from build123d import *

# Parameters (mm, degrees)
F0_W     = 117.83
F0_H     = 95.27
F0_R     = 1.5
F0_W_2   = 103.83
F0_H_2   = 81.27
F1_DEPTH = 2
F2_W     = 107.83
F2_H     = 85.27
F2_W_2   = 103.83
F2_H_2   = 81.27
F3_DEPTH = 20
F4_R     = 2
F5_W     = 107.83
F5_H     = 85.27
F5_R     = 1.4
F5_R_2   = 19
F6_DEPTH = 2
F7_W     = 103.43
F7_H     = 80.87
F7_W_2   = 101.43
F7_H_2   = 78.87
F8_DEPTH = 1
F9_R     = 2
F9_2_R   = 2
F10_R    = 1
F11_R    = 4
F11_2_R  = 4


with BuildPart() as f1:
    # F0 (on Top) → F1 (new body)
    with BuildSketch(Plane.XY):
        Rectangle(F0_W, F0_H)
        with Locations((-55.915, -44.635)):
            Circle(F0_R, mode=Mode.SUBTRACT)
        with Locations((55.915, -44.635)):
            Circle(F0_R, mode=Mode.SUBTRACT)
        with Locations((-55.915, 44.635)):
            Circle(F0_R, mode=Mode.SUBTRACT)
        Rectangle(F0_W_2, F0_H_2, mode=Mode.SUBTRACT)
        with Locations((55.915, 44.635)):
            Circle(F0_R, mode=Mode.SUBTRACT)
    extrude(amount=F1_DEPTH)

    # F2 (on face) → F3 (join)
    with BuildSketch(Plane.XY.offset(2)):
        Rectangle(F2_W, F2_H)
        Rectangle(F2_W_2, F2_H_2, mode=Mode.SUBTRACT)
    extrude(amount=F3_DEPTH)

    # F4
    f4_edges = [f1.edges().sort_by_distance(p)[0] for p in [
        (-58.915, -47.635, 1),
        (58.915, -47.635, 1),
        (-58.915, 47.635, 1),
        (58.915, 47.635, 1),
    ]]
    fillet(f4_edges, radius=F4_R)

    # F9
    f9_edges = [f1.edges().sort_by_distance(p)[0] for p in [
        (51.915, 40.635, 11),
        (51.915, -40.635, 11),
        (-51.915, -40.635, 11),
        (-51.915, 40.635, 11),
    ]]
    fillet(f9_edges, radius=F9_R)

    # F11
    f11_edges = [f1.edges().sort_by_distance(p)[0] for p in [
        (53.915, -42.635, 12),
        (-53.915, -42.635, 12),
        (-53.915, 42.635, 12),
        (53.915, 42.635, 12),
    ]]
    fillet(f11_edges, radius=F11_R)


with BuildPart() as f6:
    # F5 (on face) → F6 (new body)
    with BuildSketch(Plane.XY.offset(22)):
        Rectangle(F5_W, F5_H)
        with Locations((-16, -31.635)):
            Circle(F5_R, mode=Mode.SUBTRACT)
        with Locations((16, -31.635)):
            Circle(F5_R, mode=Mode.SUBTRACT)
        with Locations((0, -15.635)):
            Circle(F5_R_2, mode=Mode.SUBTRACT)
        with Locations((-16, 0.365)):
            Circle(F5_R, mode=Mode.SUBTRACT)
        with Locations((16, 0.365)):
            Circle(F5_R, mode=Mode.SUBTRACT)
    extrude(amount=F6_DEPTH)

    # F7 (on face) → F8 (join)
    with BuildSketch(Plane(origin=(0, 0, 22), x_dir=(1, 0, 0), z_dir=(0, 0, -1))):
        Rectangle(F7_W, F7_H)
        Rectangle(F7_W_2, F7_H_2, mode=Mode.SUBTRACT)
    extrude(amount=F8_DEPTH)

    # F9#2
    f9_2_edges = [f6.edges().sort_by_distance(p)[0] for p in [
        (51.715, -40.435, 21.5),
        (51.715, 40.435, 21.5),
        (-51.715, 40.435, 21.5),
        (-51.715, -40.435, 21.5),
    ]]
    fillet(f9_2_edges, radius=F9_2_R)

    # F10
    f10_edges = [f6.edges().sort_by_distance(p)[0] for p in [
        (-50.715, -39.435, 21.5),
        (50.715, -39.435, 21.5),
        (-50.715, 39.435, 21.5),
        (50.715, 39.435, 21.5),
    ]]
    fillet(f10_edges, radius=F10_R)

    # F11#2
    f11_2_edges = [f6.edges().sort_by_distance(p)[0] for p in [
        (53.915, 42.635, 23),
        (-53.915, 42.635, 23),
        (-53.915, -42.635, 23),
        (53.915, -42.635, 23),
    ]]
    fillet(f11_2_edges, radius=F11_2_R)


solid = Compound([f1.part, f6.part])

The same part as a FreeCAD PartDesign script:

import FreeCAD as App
import Part
import Sketcher

V = App.Vector
Q = App.Units.Quantity


def edges_at(feature, points):
    """Names of the edges that pass closest to the given points."""
    edges = feature.Shape.Edges
    near = lambda p: min(range(len(edges)), key=lambda i: edges[i].distToShape(Part.Vertex(*p))[0])
    return sorted({f"Edge{near(p) + 1}" for p in points})

doc = App.newDocument("Part")
body = doc.addObject("PartDesign::Body", "Body")

sketch1 = doc.addObject("Sketcher::SketchObject", "Sketch")
body.addObject(sketch1)
sketch1.AttachmentSupport = (doc.XY_Plane, [""])
sketch1.MapMode = "FlatFace"
sketch1.addGeometry([
    Part.LineSegment(V(-58.9, 47.6, 0), V(-58.9, -47.6, 0)),
    Part.LineSegment(V(-58.9, -47.6, 0), V(58.9, -47.6, 0)),
    Part.LineSegment(V(58.9, -47.6, 0), V(58.9, 47.6, 0)),
    Part.LineSegment(V(58.9, 47.6, 0), V(-58.9, 47.6, 0)),
    Part.Circle(V(-55.9, -44.6, 0), V(0, 0, 1), 1.5),
    Part.Circle(V(55.9, -44.6, 0), V(0, 0, 1), 1.5),
    Part.Circle(V(-55.9, 44.6, 0), V(0, 0, 1), 1.5),
    Part.LineSegment(V(51.9, -40.6, 0), V(-51.9, -40.6, 0)),
    Part.LineSegment(V(-51.9, -40.6, 0), V(-51.9, 40.6, 0)),
    Part.LineSegment(V(-51.9, 40.6, 0), V(51.9, 40.6, 0)),
    Part.LineSegment(V(51.9, 40.6, 0), V(51.9, -40.6, 0)),
    Part.Circle(V(55.9, 44.6, 0), V(0, 0, 1), 1.5),
], False)
sketch1.addConstraint([
    Sketcher.Constraint("Coincident", 0, 2, 1, 1),
    Sketcher.Constraint("Coincident", 1, 2, 2, 1),
    Sketcher.Constraint("Coincident", 2, 2, 3, 1),
    Sketcher.Constraint("Coincident", 3, 2, 0, 1),
    Sketcher.Constraint("Coincident", 7, 2, 8, 1),
    Sketcher.Constraint("Coincident", 8, 2, 9, 1),
    Sketcher.Constraint("Coincident", 9, 2, 10, 1),
    Sketcher.Constraint("Coincident", 10, 2, 7, 1),
    Sketcher.Constraint("Vertical", 0),
    Sketcher.Constraint("Horizontal", 1),
    Sketcher.Constraint("Vertical", 2),
    Sketcher.Constraint("Horizontal", 3),
    Sketcher.Constraint("Horizontal", 7),
    Sketcher.Constraint("Vertical", 8),
    Sketcher.Constraint("Horizontal", 9),
    Sketcher.Constraint("Vertical", 10),
    Sketcher.Constraint("Equal", 4, 5),
    Sketcher.Constraint("Equal", 5, 6),
    Sketcher.Constraint("Equal", 6, 11),
    Sketcher.Constraint("Symmetric", 5, 3, 6, 3, -1, 1),
    Sketcher.Constraint("Symmetric", 4, 3, 11, 3, -1, 1),
    Sketcher.Constraint("Symmetric", 0, 2, 2, 2, -1, 1),
    Sketcher.Constraint("Symmetric", 7, 2, 9, 2, -1, 1),
    Sketcher.Constraint("Symmetric", 4, 3, 5, 3, -2),
    Sketcher.Constraint("Diameter", 4, Q("3 mm")),
    Sketcher.Constraint("DistanceX", 0, 2, 4, 3, Q("3 mm")),
    Sketcher.Constraint("DistanceY", 0, 2, 4, 3, Q("3 mm")),
    Sketcher.Constraint("DistanceX", 4, 3, 7, 2, Q("4 mm")),
    Sketcher.Constraint("DistanceY", 4, 3, 7, 2, Q("4 mm")),
    Sketcher.Constraint("DistanceX", 1, 1, 1, 2, Q("117.83 mm")),
    Sketcher.Constraint("DistanceY", 0, 2, 0, 1, Q("95.27 mm")),
])
pad1 = doc.addObject("PartDesign::Pad", "Pad")
body.addObject(pad1)
pad1.Profile = sketch1
pad1.Length = 2

sketch2 = doc.addObject("Sketcher::SketchObject", "Sketch001")
body.addObject(sketch2)
sketch2.AttachmentSupport = (doc.XY_Plane, [""])
sketch2.MapMode = "FlatFace"
sketch2.AttachmentOffset = App.Placement(V(0, 0, 2), App.Rotation())
sketch2.addGeometry([
    Part.LineSegment(V(-54, 43, 0), V(-54, -43, 0)),
    Part.LineSegment(V(-54, -43, 0), V(54, -43, 0)),
    Part.LineSegment(V(54, -43, 0), V(54, 43, 0)),
    Part.LineSegment(V(54, 43, 0), V(-54, 43, 0)),
    Part.LineSegment(V(52, -41, 0), V(-52, -41, 0)),
    Part.LineSegment(V(-52, -41, 0), V(-52, 41, 0)),
    Part.LineSegment(V(-52, 41, 0), V(52, 41, 0)),
    Part.LineSegment(V(52, 41, 0), V(52, -41, 0)),
], False)
sketch2.addConstraint([
    Sketcher.Constraint("Coincident", 0, 2, 1, 1),
    Sketcher.Constraint("Coincident", 1, 2, 2, 1),
    Sketcher.Constraint("Coincident", 2, 2, 3, 1),
    Sketcher.Constraint("Coincident", 3, 2, 0, 1),
    Sketcher.Constraint("Coincident", 4, 2, 5, 1),
    Sketcher.Constraint("Coincident", 5, 2, 6, 1),
    Sketcher.Constraint("Coincident", 6, 2, 7, 1),
    Sketcher.Constraint("Coincident", 7, 2, 4, 1),
    Sketcher.Constraint("Vertical", 0),
    Sketcher.Constraint("Horizontal", 1),
    Sketcher.Constraint("Vertical", 2),
    Sketcher.Constraint("Horizontal", 3),
    Sketcher.Constraint("Horizontal", 4),
    Sketcher.Constraint("Vertical", 5),
    Sketcher.Constraint("Horizontal", 6),
    Sketcher.Constraint("Vertical", 7),
    Sketcher.Constraint("Symmetric", 0, 2, 2, 2, -1, 1),
    Sketcher.Constraint("Symmetric", 4, 2, 6, 2, -1, 1),
    Sketcher.Constraint("DistanceX", 0, 2, 4, 2, Q("2 mm")),
    Sketcher.Constraint("DistanceY", 0, 2, 4, 2, Q("2 mm")),
    Sketcher.Constraint("DistanceX", 1, 1, 1, 2, Q("107.83 mm")),
    Sketcher.Constraint("DistanceY", 0, 2, 0, 1, Q("85.27 mm")),
])
pad2 = doc.addObject("PartDesign::Pad", "Pad001")
body.addObject(pad2)
pad2.Profile = sketch2
pad2.Length = 20
doc.recompute()

fillet = doc.addObject("PartDesign::Fillet", "Fillet")
body.addObject(fillet)
fillet.Base = (pad2, edges_at(pad2, [
    (-58.915, -47.635, 1),
    (58.915, -47.635, 1),
    (-58.915, 47.635, 1),
    (58.915, 47.635, 1),
]))
fillet.Radius = 2
doc.recompute()

fillet2 = doc.addObject("PartDesign::Fillet", "Fillet001")
body.addObject(fillet2)
fillet2.Base = (fillet, edges_at(fillet, [
    (51.915, 40.635, 11),
    (51.915, -40.635, 11),
    (-51.915, -40.635, 11),
    (-51.915, 40.635, 11),
]))
fillet2.Radius = 2
doc.recompute()

fillet3 = doc.addObject("PartDesign::Fillet", "Fillet002")
body.addObject(fillet3)
fillet3.Base = (fillet2, edges_at(fillet2, [
    (53.915, -42.635, 12),
    (-53.915, -42.635, 12),
    (-53.915, 42.635, 12),
    (53.915, 42.635, 12),
]))
fillet3.Radius = 4
body2 = doc.addObject("PartDesign::Body", "Body001")

sketch3 = doc.addObject("Sketcher::SketchObject", "Sketch002")
body2.addObject(sketch3)
sketch3.AttachmentSupport = (doc.getObject("XY_Plane001"), [""])
sketch3.MapMode = "FlatFace"
sketch3.AttachmentOffset = App.Placement(V(0, 0, 22), App.Rotation())
sketch3.addGeometry([
    Part.LineSegment(V(-53.9, 42.6, 0), V(-53.9, -42.6, 0)),
    Part.LineSegment(V(-53.9, -42.6, 0), V(53.9, -42.6, 0)),
    Part.LineSegment(V(53.9, -42.6, 0), V(53.9, 42.6, 0)),
    Part.LineSegment(V(53.9, 42.6, 0), V(-53.9, 42.6, 0)),
    Part.Circle(V(-16, -31.6, 0), V(0, 0, 1), 1.4),
    Part.Circle(V(16, -31.6, 0), V(0, 0, 1), 1.4),
    Part.Circle(V(-16, 0.4, 0), V(0, 0, 1), 1.4),
    Part.Circle(V(0, -15.6, 0), V(0, 0, 1), 19),
    Part.Circle(V(16, 0.4, 0), V(0, 0, 1), 1.4),
], False)
sketch3.addConstraint([
    Sketcher.Constraint("Coincident", 0, 2, 1, 1),
    Sketcher.Constraint("Coincident", 1, 2, 2, 1),
    Sketcher.Constraint("Coincident", 2, 2, 3, 1),
    Sketcher.Constraint("Coincident", 3, 2, 0, 1),
    Sketcher.Constraint("Vertical", 0),
    Sketcher.Constraint("Horizontal", 1),
    Sketcher.Constraint("Vertical", 2),
    Sketcher.Constraint("Horizontal", 3),
    Sketcher.Constraint("Equal", 4, 5),
    Sketcher.Constraint("Equal", 5, 6),
    Sketcher.Constraint("Equal", 6, 8),
    Sketcher.Constraint("Symmetric", 0, 2, 2, 2, -1, 1),
    Sketcher.Constraint("Symmetric", 4, 3, 5, 3, -2),
    Sketcher.Constraint("Symmetric", 6, 3, 8, 3, -2),
    Sketcher.Constraint("PointOnObject", 7, 3, -2),
    Sketcher.Constraint("Vertical", 4, 3, 6, 3),
    Sketcher.Constraint("Diameter", 7, Q("38 mm")),
    Sketcher.Constraint("Diameter", 4, Q("2.8 mm")),
    Sketcher.Constraint("DistanceX", 4, 3, -1, 1, Q("16 mm")),
    Sketcher.Constraint("DistanceY", 4, 3, 6, 3, Q("32 mm")),
    Sketcher.Constraint("DistanceY", 4, 3, 7, 3, Q("16 mm")),
    Sketcher.Constraint("DistanceY", 0, 2, 4, 3, Q("11 mm")),
    Sketcher.Constraint("DistanceX", 1, 1, 1, 2, Q("107.83 mm")),
    Sketcher.Constraint("DistanceY", 0, 2, 0, 1, Q("85.27 mm")),
])
pad3 = doc.addObject("PartDesign::Pad", "Pad002")
body2.addObject(pad3)
pad3.Profile = sketch3
pad3.Length = 2

sketch4 = doc.addObject("Sketcher::SketchObject", "Sketch003")
body2.addObject(sketch4)
sketch4.AttachmentSupport = (doc.getObject("XY_Plane001"), [""])
sketch4.MapMode = "FlatFace"
sketch4.AttachmentOffset = App.Placement(V(0, 0, 22), App.Rotation())
sketch4.addGeometry([
    Part.LineSegment(V(-52, -40, 0), V(-52, 40, 0)),
    Part.LineSegment(V(-52, 40, 0), V(52, 40, 0)),
    Part.LineSegment(V(52, 40, 0), V(52, -40, 0)),
    Part.LineSegment(V(52, -40, 0), V(-52, -40, 0)),
    Part.LineSegment(V(51, 39, 0), V(-51, 39, 0)),
    Part.LineSegment(V(-51, 39, 0), V(-51, -39, 0)),
    Part.LineSegment(V(-51, -39, 0), V(51, -39, 0)),
    Part.LineSegment(V(51, -39, 0), V(51, 39, 0)),
], False)
sketch4.addConstraint([
    Sketcher.Constraint("Coincident", 0, 2, 1, 1),
    Sketcher.Constraint("Coincident", 1, 2, 2, 1),
    Sketcher.Constraint("Coincident", 2, 2, 3, 1),
    Sketcher.Constraint("Coincident", 3, 2, 0, 1),
    Sketcher.Constraint("Coincident", 4, 2, 5, 1),
    Sketcher.Constraint("Coincident", 5, 2, 6, 1),
    Sketcher.Constraint("Coincident", 6, 2, 7, 1),
    Sketcher.Constraint("Coincident", 7, 2, 4, 1),
    Sketcher.Constraint("Vertical", 0),
    Sketcher.Constraint("Horizontal", 1),
    Sketcher.Constraint("Vertical", 2),
    Sketcher.Constraint("Horizontal", 3),
    Sketcher.Constraint("Horizontal", 4),
    Sketcher.Constraint("Vertical", 5),
    Sketcher.Constraint("Horizontal", 6),
    Sketcher.Constraint("Vertical", 7),
    Sketcher.Constraint("Symmetric", 0, 2, 2, 2, -1, 1),
    Sketcher.Constraint("Symmetric", 4, 2, 6, 2, -1, 1),
    Sketcher.Constraint("DistanceX", 0, 2, 4, 2, Q("1 mm")),
    Sketcher.Constraint("DistanceY", 4, 2, 0, 2, Q("1 mm")),
    Sketcher.Constraint("DistanceX", 1, 1, 1, 2, Q("103.43 mm")),
    Sketcher.Constraint("DistanceY", 0, 1, 0, 2, Q("80.87 mm")),
])
pad4 = doc.addObject("PartDesign::Pad", "Pad003")
body2.addObject(pad4)
pad4.Profile = sketch4
pad4.Length = 1
pad4.Reversed = True
doc.recompute()

fillet4 = doc.addObject("PartDesign::Fillet", "Fillet003")
body2.addObject(fillet4)
fillet4.Base = (pad4, edges_at(pad4, [
    (51.715, -40.435, 21.5),
    (51.715, 40.435, 21.5),
    (-51.715, 40.435, 21.5),
    (-51.715, -40.435, 21.5),
]))
fillet4.Radius = 2
doc.recompute()

fillet5 = doc.addObject("PartDesign::Fillet", "Fillet004")
body2.addObject(fillet5)
fillet5.Base = (fillet4, edges_at(fillet4, [
    (-50.715, -39.435, 21.5),
    (50.715, -39.435, 21.5),
    (-50.715, 39.435, 21.5),
    (50.715, 39.435, 21.5),
]))
fillet5.Radius = 1
doc.recompute()

fillet6 = doc.addObject("PartDesign::Fillet", "Fillet005")
body2.addObject(fillet6)
fillet6.Base = (fillet5, edges_at(fillet5, [
    (53.915, 42.635, 23),
    (-53.915, 42.635, 23),
    (-53.915, -42.635, 23),
    (53.915, -42.635, 23),
]))
fillet6.Radius = 4

doc.recompute()
